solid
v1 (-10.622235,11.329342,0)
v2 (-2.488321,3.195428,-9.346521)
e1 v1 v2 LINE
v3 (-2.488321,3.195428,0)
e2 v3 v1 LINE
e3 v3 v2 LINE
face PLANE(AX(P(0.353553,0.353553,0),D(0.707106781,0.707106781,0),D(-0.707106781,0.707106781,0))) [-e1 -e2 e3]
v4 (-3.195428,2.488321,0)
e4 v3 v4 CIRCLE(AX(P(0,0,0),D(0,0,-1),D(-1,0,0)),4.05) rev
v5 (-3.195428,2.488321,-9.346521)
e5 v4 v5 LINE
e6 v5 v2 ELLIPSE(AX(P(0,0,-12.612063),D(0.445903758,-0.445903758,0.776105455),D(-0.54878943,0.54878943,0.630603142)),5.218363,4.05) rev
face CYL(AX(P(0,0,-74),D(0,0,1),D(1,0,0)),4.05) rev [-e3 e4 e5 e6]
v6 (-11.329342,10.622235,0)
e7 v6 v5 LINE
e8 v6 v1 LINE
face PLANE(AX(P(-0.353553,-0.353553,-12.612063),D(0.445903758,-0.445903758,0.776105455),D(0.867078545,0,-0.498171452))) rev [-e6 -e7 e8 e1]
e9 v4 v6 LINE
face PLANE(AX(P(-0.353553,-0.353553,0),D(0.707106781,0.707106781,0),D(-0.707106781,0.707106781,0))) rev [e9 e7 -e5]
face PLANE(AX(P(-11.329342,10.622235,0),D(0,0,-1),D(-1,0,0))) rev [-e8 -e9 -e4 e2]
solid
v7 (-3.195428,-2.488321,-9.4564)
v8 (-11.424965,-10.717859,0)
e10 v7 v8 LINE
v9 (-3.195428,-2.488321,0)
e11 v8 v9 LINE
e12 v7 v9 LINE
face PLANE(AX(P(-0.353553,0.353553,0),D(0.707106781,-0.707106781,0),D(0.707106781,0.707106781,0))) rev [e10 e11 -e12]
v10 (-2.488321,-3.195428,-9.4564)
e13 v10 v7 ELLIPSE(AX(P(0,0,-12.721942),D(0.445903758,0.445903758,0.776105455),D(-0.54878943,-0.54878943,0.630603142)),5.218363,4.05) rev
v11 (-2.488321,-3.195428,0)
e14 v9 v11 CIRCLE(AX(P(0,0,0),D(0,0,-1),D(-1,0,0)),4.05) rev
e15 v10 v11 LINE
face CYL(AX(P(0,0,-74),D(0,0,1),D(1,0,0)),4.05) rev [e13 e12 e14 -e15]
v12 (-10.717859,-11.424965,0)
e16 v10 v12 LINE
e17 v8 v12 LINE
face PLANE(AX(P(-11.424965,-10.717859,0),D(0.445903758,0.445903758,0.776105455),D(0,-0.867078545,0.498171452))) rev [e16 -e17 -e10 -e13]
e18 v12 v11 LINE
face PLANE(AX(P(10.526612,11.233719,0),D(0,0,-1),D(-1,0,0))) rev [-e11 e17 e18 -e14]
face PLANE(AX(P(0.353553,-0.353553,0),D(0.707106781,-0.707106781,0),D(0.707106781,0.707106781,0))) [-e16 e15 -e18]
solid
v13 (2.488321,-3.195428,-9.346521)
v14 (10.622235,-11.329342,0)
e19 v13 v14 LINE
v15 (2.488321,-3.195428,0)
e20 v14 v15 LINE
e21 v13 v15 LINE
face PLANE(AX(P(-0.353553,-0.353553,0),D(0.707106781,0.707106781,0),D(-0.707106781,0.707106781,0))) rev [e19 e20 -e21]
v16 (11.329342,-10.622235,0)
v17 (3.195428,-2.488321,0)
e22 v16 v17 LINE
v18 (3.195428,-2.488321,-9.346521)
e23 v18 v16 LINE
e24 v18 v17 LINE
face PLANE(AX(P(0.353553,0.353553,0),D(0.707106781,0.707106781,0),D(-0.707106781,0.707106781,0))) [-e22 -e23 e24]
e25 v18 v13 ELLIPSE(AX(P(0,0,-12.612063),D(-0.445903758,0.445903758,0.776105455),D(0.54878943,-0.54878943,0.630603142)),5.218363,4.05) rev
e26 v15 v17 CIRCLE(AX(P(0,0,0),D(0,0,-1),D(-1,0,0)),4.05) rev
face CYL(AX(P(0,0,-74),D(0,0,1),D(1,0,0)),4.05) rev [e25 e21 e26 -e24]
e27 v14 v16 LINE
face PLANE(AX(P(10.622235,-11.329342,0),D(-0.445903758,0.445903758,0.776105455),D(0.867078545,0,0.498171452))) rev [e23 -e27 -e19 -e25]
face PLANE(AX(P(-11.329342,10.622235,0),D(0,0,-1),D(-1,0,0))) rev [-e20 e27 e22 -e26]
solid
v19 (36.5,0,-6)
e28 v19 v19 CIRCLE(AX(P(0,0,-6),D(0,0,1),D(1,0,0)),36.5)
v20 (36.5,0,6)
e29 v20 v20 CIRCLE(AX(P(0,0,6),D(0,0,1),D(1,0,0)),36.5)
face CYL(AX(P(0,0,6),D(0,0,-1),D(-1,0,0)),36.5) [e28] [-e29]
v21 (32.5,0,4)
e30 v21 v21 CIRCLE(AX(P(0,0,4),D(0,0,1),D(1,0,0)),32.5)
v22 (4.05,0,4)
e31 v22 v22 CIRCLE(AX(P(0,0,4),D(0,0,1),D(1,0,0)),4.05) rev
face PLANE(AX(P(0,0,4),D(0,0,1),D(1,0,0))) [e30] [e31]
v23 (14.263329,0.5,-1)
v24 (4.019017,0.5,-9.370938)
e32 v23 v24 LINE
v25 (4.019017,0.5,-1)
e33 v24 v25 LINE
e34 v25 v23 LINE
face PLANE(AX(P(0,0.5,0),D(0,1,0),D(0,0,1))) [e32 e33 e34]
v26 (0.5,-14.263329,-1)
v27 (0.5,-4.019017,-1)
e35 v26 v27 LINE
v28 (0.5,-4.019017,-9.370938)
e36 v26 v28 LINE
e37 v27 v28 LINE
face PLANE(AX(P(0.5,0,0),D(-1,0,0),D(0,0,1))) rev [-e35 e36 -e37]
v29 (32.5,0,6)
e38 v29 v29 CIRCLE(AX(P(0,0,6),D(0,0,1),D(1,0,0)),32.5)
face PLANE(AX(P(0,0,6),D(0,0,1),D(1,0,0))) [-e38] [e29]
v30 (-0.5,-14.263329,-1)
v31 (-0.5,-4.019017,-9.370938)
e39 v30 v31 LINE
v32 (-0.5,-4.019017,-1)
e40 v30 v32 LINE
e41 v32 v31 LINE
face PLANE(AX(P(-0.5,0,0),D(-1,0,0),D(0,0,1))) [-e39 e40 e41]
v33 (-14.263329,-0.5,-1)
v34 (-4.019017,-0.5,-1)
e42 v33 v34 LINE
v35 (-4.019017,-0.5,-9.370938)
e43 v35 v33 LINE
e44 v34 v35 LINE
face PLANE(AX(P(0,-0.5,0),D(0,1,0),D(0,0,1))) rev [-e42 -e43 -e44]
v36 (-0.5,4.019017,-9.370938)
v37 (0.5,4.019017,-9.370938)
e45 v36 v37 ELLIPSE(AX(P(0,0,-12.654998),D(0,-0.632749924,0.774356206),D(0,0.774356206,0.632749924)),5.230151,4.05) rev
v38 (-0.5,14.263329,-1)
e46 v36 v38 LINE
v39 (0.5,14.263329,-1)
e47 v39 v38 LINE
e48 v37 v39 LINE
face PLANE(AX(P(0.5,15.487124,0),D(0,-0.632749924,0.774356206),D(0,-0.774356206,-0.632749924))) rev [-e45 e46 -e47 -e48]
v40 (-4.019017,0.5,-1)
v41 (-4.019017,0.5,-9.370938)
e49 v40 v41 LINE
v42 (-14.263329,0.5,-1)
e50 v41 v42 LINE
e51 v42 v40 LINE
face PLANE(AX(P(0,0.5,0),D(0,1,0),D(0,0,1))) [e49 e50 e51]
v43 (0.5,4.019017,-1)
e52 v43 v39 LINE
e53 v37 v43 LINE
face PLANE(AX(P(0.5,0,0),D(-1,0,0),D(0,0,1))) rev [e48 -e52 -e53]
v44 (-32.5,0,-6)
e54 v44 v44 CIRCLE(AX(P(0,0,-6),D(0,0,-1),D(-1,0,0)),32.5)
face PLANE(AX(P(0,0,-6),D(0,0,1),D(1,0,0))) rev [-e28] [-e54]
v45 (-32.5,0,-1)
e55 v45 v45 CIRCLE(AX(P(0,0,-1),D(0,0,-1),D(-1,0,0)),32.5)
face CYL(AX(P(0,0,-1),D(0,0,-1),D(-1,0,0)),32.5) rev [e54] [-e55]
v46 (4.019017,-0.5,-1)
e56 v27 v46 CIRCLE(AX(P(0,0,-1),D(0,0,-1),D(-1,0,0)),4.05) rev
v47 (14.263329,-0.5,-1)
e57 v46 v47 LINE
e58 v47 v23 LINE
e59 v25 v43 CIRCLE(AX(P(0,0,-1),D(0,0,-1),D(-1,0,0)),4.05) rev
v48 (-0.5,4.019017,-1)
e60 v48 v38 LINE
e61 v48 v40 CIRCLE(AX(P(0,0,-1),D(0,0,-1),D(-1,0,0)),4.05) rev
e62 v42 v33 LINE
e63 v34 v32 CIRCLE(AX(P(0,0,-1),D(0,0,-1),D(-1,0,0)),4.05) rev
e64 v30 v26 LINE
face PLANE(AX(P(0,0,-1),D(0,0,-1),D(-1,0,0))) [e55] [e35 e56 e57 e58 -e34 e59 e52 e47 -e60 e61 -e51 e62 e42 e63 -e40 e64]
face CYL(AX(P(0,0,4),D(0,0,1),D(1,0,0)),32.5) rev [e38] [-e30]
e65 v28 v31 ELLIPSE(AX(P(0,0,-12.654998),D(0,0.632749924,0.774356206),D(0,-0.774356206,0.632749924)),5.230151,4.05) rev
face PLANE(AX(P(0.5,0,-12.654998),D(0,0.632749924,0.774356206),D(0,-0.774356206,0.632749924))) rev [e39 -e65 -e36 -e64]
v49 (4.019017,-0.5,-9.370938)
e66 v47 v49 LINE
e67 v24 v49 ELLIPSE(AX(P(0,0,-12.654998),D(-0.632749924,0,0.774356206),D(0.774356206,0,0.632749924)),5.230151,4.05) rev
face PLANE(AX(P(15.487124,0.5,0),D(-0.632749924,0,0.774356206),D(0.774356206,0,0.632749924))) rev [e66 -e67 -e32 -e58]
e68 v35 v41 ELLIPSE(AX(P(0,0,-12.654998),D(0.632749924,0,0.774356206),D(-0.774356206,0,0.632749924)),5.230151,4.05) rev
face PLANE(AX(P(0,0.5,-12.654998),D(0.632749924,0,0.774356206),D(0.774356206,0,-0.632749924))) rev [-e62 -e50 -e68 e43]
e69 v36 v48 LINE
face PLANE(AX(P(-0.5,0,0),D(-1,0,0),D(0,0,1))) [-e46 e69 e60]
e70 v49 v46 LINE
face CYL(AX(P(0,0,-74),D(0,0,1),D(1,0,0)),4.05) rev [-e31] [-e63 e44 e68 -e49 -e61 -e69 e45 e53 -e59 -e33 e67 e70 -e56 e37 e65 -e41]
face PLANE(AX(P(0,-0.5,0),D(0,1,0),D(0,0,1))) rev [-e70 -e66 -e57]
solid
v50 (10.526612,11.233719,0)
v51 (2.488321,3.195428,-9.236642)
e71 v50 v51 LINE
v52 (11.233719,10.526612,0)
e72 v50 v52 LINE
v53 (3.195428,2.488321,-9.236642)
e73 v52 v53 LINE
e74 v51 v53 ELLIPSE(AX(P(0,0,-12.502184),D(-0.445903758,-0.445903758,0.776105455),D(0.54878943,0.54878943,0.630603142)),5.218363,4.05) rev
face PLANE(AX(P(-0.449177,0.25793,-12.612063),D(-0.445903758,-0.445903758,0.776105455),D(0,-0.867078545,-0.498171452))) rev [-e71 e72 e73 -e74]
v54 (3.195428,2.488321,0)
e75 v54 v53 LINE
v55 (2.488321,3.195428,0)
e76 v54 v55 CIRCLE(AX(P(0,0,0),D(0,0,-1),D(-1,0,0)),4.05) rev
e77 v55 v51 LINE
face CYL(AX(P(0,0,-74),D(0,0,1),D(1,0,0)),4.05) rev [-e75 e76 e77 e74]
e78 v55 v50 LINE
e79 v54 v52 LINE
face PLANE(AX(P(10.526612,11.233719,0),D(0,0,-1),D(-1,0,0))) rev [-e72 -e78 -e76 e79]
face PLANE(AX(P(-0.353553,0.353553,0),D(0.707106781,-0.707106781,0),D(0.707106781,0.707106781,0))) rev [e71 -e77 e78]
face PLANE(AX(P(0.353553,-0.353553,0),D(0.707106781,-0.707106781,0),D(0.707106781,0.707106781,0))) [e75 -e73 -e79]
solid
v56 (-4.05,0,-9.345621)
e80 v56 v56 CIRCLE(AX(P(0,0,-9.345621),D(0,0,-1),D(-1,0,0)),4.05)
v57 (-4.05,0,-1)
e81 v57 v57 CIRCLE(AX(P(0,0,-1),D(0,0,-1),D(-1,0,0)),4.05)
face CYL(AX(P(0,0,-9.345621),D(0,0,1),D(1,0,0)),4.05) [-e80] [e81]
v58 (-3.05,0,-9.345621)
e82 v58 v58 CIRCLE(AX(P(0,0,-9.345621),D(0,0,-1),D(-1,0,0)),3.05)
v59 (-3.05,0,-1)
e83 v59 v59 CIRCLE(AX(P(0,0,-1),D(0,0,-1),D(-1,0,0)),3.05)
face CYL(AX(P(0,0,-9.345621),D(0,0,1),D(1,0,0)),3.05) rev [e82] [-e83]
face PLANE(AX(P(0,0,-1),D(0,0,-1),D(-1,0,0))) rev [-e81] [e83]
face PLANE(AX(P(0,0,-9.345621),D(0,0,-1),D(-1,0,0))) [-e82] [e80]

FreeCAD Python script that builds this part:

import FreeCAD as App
import Part
import Sketcher

doc = App.newDocument("Part")
params = doc.addObject("Spreadsheet::Sheet", "Params")
for row, (alias, value) in enumerate([
    ("sketch1_diameter", "73 mm"),
    ("pad1_length", "12 mm"),
    ("sketch2_diameter", "65 mm"),
    ("pocket1_length", "2 mm"),
    ("sketch3_diameter", "65 mm"),
    ("pocket2_length", "5 mm"),
    ("sketch4_length", "20 mm"),
    ("pad2_length", "1 mm"),
    ("sketch5_length", "20 mm"),
    ("pad3_length", "1 mm"),
    ("sketch6_length", "20 mm"),
    ("pad4_length", "1 mm"),
    ("sketch7_length", "20 mm"),
    ("pad5_length", "1 mm"),
    ("sketch8_diameter", "8.1 mm"),
    ("pad6_length", "68 mm"),
    ("pad6_length2", "62 mm"),
    ("sketch9_diameter", "8.1 mm"),
    ("sketch9_diameter2", "6.1 mm"),
    ("pad7_length", "8.345621 mm"),
], start=1):
    params.set(f"A{row}", alias)
    params.set(f"B{row}", "=" + value)
    params.setAlias(f"B{row}", alias)

body = doc.addObject("PartDesign::Body", "Body")

# Sketch on XY plane
sketch1 = body.newObject("Sketcher::SketchObject", "Sketch")
sketch1.AttachmentSupport = (doc.getObject("XY_Plane"), [""])
sketch1.MapMode = "FlatFace"
sketch1.addGeometry(Part.Circle(App.Vector(0, 0, 0), App.Vector(0, 0, 1), 36), False)
sketch1.addConstraint([
    Sketcher.Constraint("Coincident", 0, 3, -1, 1),
    Sketcher.Constraint("Diameter", 0, 73.0),
])
sketch1.setExpression("Constraints[1]", "Params.sketch1_diameter")
pad1 = body.newObject("PartDesign::Pad", "Pad")
pad1.Profile = sketch1
pad1.setExpression("Length", "Params.pad1_length")
pad1.Midplane = True

# Sketch on XY plane
sketch2 = body.newObject("Sketcher::SketchObject", "Sketch001")
sketch2.AttachmentSupport = (doc.getObject("XY_Plane"), [""])
sketch2.MapMode = "FlatFace"
sketch2.AttachmentOffset = App.Placement(App.Vector(0, 0, 6), App.Rotation())
sketch2.addGeometry(Part.Circle(App.Vector(0, 0, 0), App.Vector(0, 0, 1), 32), False)
sketch2.addConstraint([
    Sketcher.Constraint("Coincident", 0, 3, -1, 1),
    Sketcher.Constraint("Diameter", 0, 65.0),
])
sketch2.setExpression("Constraints[1]", "Params.sketch2_diameter")
pocket1 = body.newObject("PartDesign::Pocket", "Pocket")
pocket1.Profile = sketch2
pocket1.setExpression("Length", "Params.pocket1_length")

# Sketch on XY plane
sketch3 = body.newObject("Sketcher::SketchObject", "Sketch002")
sketch3.AttachmentSupport = (doc.getObject("XY_Plane"), [""])
sketch3.MapMode = "FlatFace"
sketch3.AttachmentOffset = App.Placement(App.Vector(0, 0, -1), App.Rotation())
sketch3.addGeometry(Part.Circle(App.Vector(0, 0, 0), App.Vector(0, 0, 1), 32), False)
sketch3.addConstraint([
    Sketcher.Constraint("Coincident", 0, 3, -1, 1),
    Sketcher.Constraint("Diameter", 0, 65.0),
])
sketch3.setExpression("Constraints[1]", "Params.sketch3_diameter")
pocket2 = body.newObject("PartDesign::Pocket", "Pocket001")
pocket2.Profile = sketch3
pocket2.setExpression("Length", "Params.pocket2_length")

# Sketch on YZ plane
sketch4 = body.newObject("Sketcher::SketchObject", "Sketch003")
sketch4.AttachmentSupport = (doc.getObject("YZ_Plane"), [""])
sketch4.MapMode = "FlatFace"
sketch4.addGeometry([
    Part.LineSegment(App.Vector(-15, 0, 0), App.Vector(0, -13, 0)),
    Part.LineSegment(App.Vector(0, -13, 0), App.Vector(15, 0, 0)),
    Part.LineSegment(App.Vector(15, 0, 0), App.Vector(-15, 0, 0)),
], False)
sketch4.addConstraint([
    Sketcher.Constraint("Coincident", 0, 2, 1, 1),
    Sketcher.Constraint("Coincident", 1, 2, 2, 1),
    Sketcher.Constraint("Coincident", 2, 2, 0, 1),
    Sketcher.Constraint("Horizontal", 2),
    Sketcher.Constraint("Symmetric", 1, 2, 2, 2, -1, 1),
    Sketcher.Constraint("PointOnObject", 0, 2, -2),
    Sketcher.Constraint("Distance", 0, 20.0),
    Sketcher.Constraint("DistanceY", 0, 2, -1, 1, 12.654998),
])
sketch4.setExpression("Constraints[6]", "Params.sketch4_length")
pad2 = body.newObject("PartDesign::Pad", "Pad001")
pad2.Profile = sketch4
pad2.setExpression("Length", "Params.pad2_length")
pad2.Midplane = True

# Sketch on XZ plane
sketch5 = body.newObject("Sketcher::SketchObject", "Sketch004")
sketch5.AttachmentSupport = (doc.getObject("XZ_Plane"), [""])
sketch5.MapMode = "FlatFace"
sketch5.addGeometry([
    Part.LineSegment(App.Vector(0, -13, 0), App.Vector(-15, 0, 0)),
    Part.LineSegment(App.Vector(-15, 0, 0), App.Vector(15, 0, 0)),
    Part.LineSegment(App.Vector(15, 0, 0), App.Vector(0, -13, 0)),
], False)
sketch5.addConstraint([
    Sketcher.Constraint("Coincident", 0, 2, 1, 1),
    Sketcher.Constraint("Coincident", 1, 2, 2, 1),
    Sketcher.Constraint("Coincident", 2, 2, 0, 1),
    Sketcher.Constraint("Horizontal", 1),
    Sketcher.Constraint("Symmetric", 0, 2, 1, 2, -1, 1),
    Sketcher.Constraint("PointOnObject", 2, 2, -2),
    Sketcher.Constraint("Distance", 0, 20.0),
    Sketcher.Constraint("DistanceY", 2, 2, -1, 1, 12.654998),
])
sketch5.setExpression("Constraints[6]", "Params.sketch5_length")
pad3 = body.newObject("PartDesign::Pad", "Pad002")
pad3.Profile = sketch5
pad3.setExpression("Length", "Params.pad3_length")
pad3.Midplane = True
body2 = doc.addObject("PartDesign::Body", "Body001")

# Sketch on an angled plane
sketch6 = body2.newObject("Sketcher::SketchObject", "Sketch005")
sketch6.Placement = App.Placement(App.Vector(0, 0, 4), App.Rotation(App.Vector(0, 0, 1), App.Vector(0.707106781, 0.707106781, 0), App.Vector(-0.707106781, 0.707106781, 0), "ZXY"))
sketch6.addGeometry([
    Part.LineSegment(App.Vector(-17, 0, 0), App.Vector(-4, -16, 0)),
    Part.LineSegment(App.Vector(-4, -16, 0), App.Vector(-4, 15, 0)),
    Part.LineSegment(App.Vector(-4, 15, 0), App.Vector(-17, 0, 0)),
], False)
sketch6.addConstraint([
    Sketcher.Constraint("Coincident", 0, 2, 1, 1),
    Sketcher.Constraint("Coincident", 1, 2, 2, 1),
    Sketcher.Constraint("Coincident", 2, 2, 0, 1),
    Sketcher.Constraint("Vertical", 1),
    Sketcher.Constraint("Equal", 0, 2),
    Sketcher.Constraint("Distance", 0, 20.0),
    Sketcher.Constraint("DistanceX", 0, 2, -1, 1, 4.0),
    Sketcher.Constraint("DistanceY", 1, 1, 1, 2, 31.044218),
    Sketcher.Constraint("DistanceY", 0, 2, -1, 1, 15.657341),
])
sketch6.setExpression("Constraints[5]", "Params.sketch6_length")
pad4 = body2.newObject("PartDesign::Pad", "Pad003")
pad4.Profile = sketch6
pad4.setExpression("Length", "Params.pad4_length")
pad4.Midplane = True
body3 = doc.addObject("PartDesign::Body", "Body002")

# Sketch on an angled plane
sketch7 = body3.newObject("Sketcher::SketchObject", "Sketch006")
sketch7.Placement = App.Placement(App.Vector(0, 0, 4), App.Rotation(App.Vector(-0.707106781, 0.707106781, 0), App.Vector(0, 0, -0.999999999), App.Vector(-0.707106781, -0.707106781, 0), "ZXY"))
sketch7.addGeometry([
    Part.LineSegment(App.Vector(0, 17, 0), App.Vector(-16, 4, 0)),
    Part.LineSegment(App.Vector(-16, 4, 0), App.Vector(16, 4, 0)),
    Part.LineSegment(App.Vector(16, 4, 0), App.Vector(0, 17, 0)),
], False)
sketch7.addConstraint([
    Sketcher.Constraint("Coincident", 0, 2, 1, 1),
    Sketcher.Constraint("Coincident", 1, 2, 2, 1),
    Sketcher.Constraint("Coincident", 2, 2, 0, 1),
    Sketcher.Constraint("Horizontal", 1),
    Sketcher.Constraint("PointOnObject", 2, 2, -2),
    Sketcher.Constraint("Equal", 0, 2),
    Sketcher.Constraint("Distance", 0, 20.0),
    Sketcher.Constraint("DistanceY", -1, 1, 0, 2, 4.0),
    Sketcher.Constraint("DistanceX", 1, 1, 1, 2, 31.044218),
])
sketch7.setExpression("Constraints[6]", "Params.sketch7_length")
pad5 = body3.newObject("PartDesign::Pad", "Pad004")
pad5.Profile = sketch7
pad5.setExpression("Length", "Params.pad5_length")
pad5.Midplane = True
body4 = doc.addObject("PartDesign::Body", "Body003")

# Sketch on XY plane
sketch8 = body4.newObject("Sketcher::SketchObject", "Sketch007")
sketch8.AttachmentSupport = (doc.getObject("XY_Plane003"), [""])
sketch8.MapMode = "FlatFace"
sketch8.AttachmentOffset = App.Placement(App.Vector(0, 0, -6), App.Rotation())
sketch8.addGeometry(Part.Circle(App.Vector(0, 0, 0), App.Vector(0, 0, 1), 4), False)
sketch8.addConstraint([
    Sketcher.Constraint("Coincident", 0, 3, -1, 1),
    Sketcher.Constraint("Diameter", 0, 8.1),
])
sketch8.setExpression("Constraints[1]", "Params.sketch8_diameter")
pad6 = body4.newObject("PartDesign::Pad", "Pad005")
pad6.Profile = sketch8
pad6.Type = "TwoLengths"
pad6.setExpression("Length", "Params.pad6_length")
pad6.setExpression("Length2", "Params.pad6_length2")
pad6.Reversed = True
doc.recompute()

body5 = doc.addObject("PartDesign::Body", "Body004")
body5.BaseFeature = body4
boolean = body.newObject("PartDesign::Boolean", "Boolean")
boolean.Type = "Cut"
boolean.addObjects([body5])
doc.recompute()
body2.AllowCompound = True
doc.recompute()

body6 = doc.addObject("PartDesign::Body", "Body005")
body6.BaseFeature = body4
boolean2 = body2.newObject("PartDesign::Boolean", "Boolean001")
boolean2.Type = "Cut"
boolean2.addObjects([body6])
doc.recompute()
body3.AllowCompound = True
doc.recompute()

boolean3 = body3.newObject("PartDesign::Boolean", "Boolean002")
boolean3.Type = "Cut"
boolean3.addObjects([body4])
body7 = doc.addObject("PartDesign::Body", "Body006")

# Sketch on XY plane
sketch9 = body7.newObject("Sketcher::SketchObject", "Sketch008")
sketch9.AttachmentSupport = (doc.getObject("XY_Plane006"), [""])
sketch9.MapMode = "FlatFace"
sketch9.AttachmentOffset = App.Placement(App.Vector(0, 0, -1), App.Rotation())
sketch9.addGeometry([
    Part.Circle(App.Vector(0, 0, 0), App.Vector(0, 0, 1), 4),
    Part.Circle(App.Vector(0, 0, 0), App.Vector(0, 0, 1), 3),
], False)
sketch9.addConstraint([
    Sketcher.Constraint("Coincident", 0, 3, -1, 1),
    Sketcher.Constraint("Coincident", 1, 3, -1, 1),
    Sketcher.Constraint("Diameter", 0, 8.1),
    Sketcher.Constraint("Diameter", 1, 6.1),
])
sketch9.setExpression("Constraints[2]", "Params.sketch9_diameter")
sketch9.setExpression("Constraints[3]", "Params.sketch9_diameter2")
pad7 = body7.newObject("PartDesign::Pad", "Pad006")
pad7.Profile = sketch9
pad7.setExpression("Length", "Params.pad7_length")
pad7.Reversed = True

doc.recompute()
